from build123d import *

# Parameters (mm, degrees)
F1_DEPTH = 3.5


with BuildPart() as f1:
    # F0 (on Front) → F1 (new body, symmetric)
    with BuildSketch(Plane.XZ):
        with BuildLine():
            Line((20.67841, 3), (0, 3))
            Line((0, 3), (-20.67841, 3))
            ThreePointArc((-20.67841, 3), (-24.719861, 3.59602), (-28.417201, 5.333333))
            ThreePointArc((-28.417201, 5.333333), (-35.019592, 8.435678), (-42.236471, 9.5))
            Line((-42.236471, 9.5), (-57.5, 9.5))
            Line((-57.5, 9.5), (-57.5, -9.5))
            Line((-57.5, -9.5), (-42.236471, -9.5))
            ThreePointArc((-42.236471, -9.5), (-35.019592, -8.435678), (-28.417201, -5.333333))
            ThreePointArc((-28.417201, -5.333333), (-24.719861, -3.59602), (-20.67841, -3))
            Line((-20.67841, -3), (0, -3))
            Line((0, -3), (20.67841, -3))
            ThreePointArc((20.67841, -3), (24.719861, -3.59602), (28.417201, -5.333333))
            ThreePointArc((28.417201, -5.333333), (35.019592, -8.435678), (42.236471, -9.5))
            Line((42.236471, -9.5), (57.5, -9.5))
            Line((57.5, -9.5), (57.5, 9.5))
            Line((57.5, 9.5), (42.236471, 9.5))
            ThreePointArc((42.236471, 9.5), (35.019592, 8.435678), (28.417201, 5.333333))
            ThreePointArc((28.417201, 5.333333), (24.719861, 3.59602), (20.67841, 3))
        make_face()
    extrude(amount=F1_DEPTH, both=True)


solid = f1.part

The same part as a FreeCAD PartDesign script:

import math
import FreeCAD as App
import Part
import Sketcher
Q = App.Units.Quantity

doc = App.newDocument("Part")
body = doc.addObject("PartDesign::Body", "Body")

sketch1 = body.newObject("Sketcher::SketchObject", "Sketch")
sketch1.AttachmentSupport = (doc.getObject("XZ_Plane"), [""])
sketch1.MapMode = "FlatFace"
sketch1.addGeometry(Part.LineSegment(App.Vector(20.67841, 3, 0), App.Vector(-20.67841, 3, 0)), False)
sketch1.addGeometry(Part.ArcOfCircle(Part.Circle(App.Vector(-20.678411, 16.999997, 0), App.Vector(0, 0, 1), 13.999997), math.radians(-123.557311), math.radians(-89.999995)), False)
sketch1.addGeometry(Part.ArcOfCircle(Part.Circle(App.Vector(-42.236467, -15.499986, 0), App.Vector(0, 0, 1), 24.999986), math.radians(56.442679), math.radians(90.000008)), False)
sketch1.addGeometry(Part.LineSegment(App.Vector(-42.236471, 9.5, 0), App.Vector(-57.5, 9.5, 0)), False)
sketch1.addGeometry(Part.LineSegment(App.Vector(-57.5, 9.5, 0), App.Vector(-57.5, -9.5, 0)), False)
sketch1.addGeometry(Part.LineSegment(App.Vector(-57.5, -9.5, 0), App.Vector(-42.236471, -9.5, 0)), False)
sketch1.addGeometry(Part.ArcOfCircle(Part.Circle(App.Vector(-42.236467, 15.499986, 0), App.Vector(0, 0, 1), 24.999986), math.radians(-90.000008), math.radians(-56.442679)), False)
sketch1.addGeometry(Part.ArcOfCircle(Part.Circle(App.Vector(-20.678411, -16.999997, 0), App.Vector(0, 0, 1), 13.999997), math.radians(89.999995), math.radians(123.557311)), False)
sketch1.addGeometry(Part.LineSegment(App.Vector(-20.67841, -3, 0), App.Vector(20.67841, -3, 0)), False)
sketch1.addGeometry(Part.ArcOfCircle(Part.Circle(App.Vector(20.678411, -16.999997, 0), App.Vector(0, 0, 1), 13.999997), math.radians(56.442689), math.radians(90.000005)), False)
sketch1.addGeometry(Part.ArcOfCircle(Part.Circle(App.Vector(42.236467, 15.499986, 0), App.Vector(0, 0, 1), 24.999986), math.radians(-123.557321), math.radians(-89.999992)), False)
sketch1.addGeometry(Part.LineSegment(App.Vector(42.236471, -9.5, 0), App.Vector(57.5, -9.5, 0)), False)
sketch1.addGeometry(Part.LineSegment(App.Vector(57.5, -9.5, 0), App.Vector(57.5, 9.5, 0)), False)
sketch1.addGeometry(Part.LineSegment(App.Vector(57.5, 9.5, 0), App.Vector(42.236471, 9.5, 0)), False)
sketch1.addGeometry(Part.ArcOfCircle(Part.Circle(App.Vector(42.236467, -15.499986, 0), App.Vector(0, 0, 1), 24.999986), math.radians(89.999992), math.radians(123.557321)), False)
sketch1.addGeometry(Part.ArcOfCircle(Part.Circle(App.Vector(20.678411, 16.999997, 0), App.Vector(0, 0, 1), 13.999997), math.radians(-90.000005), math.radians(-56.442689)), False)
sketch1.addConstraint(Sketcher.Constraint("Tangent", 0, 2, 1, 2))
sketch1.addConstraint(Sketcher.Constraint("Tangent", 1, 1, 2, 1))
sketch1.addConstraint(Sketcher.Constraint("Tangent", 2, 2, 3, 1))
sketch1.addConstraint(Sketcher.Constraint("Coincident", 3, 2, 4, 1))
sketch1.addConstraint(Sketcher.Constraint("Coincident", 4, 2, 5, 1))
sketch1.addConstraint(Sketcher.Constraint("Tangent", 5, 2, 6, 1))
sketch1.addConstraint(Sketcher.Constraint("Tangent", 6, 2, 7, 2))
sketch1.addConstraint(Sketcher.Constraint("Tangent", 7, 1, 8, 1))
sketch1.addConstraint(Sketcher.Constraint("Tangent", 8, 2, 9, 2))
sketch1.addConstraint(Sketcher.Constraint("Tangent", 9, 1, 10, 1))
sketch1.addConstraint(Sketcher.Constraint("Tangent", 10, 2, 11, 1))
sketch1.addConstraint(Sketcher.Constraint("Coincident", 11, 2, 12, 1))
sketch1.addConstraint(Sketcher.Constraint("Coincident", 12, 2, 13, 1))
sketch1.addConstraint(Sketcher.Constraint("Tangent", 13, 2, 14, 1))
sketch1.addConstraint(Sketcher.Constraint("Tangent", 14, 2, 15, 2))
sketch1.addConstraint(Sketcher.Constraint("Tangent", 15, 1, 0, 1))
sketch1.addConstraint(Sketcher.Constraint("Horizontal", 0))
sketch1.addConstraint(Sketcher.Constraint("Horizontal", 3))
sketch1.addConstraint(Sketcher.Constraint("Vertical", 4))
sketch1.addConstraint(Sketcher.Constraint("Horizontal", 5))
sketch1.addConstraint(Sketcher.Constraint("Horizontal", 8))
sketch1.addConstraint(Sketcher.Constraint("Horizontal", 11))
sketch1.addConstraint(Sketcher.Constraint("Vertical", 12))
sketch1.addConstraint(Sketcher.Constraint("Horizontal", 13))
sketch1.addConstraint(Sketcher.Constraint("Equal", 2, 6))
sketch1.addConstraint(Sketcher.Constraint("Equal", 1, 7))
sketch1.addConstraint(Sketcher.Constraint("Equal", 7, 9))
sketch1.addConstraint(Sketcher.Constraint("Equal", 6, 10))
sketch1.addConstraint(Sketcher.Constraint("Equal", 10, 14))
sketch1.addConstraint(Sketcher.Constraint("Equal", 9, 15))
sketch1.addConstraint(Sketcher.Constraint("Symmetric", 1, 3, 9, 3, -1, 1))
sketch1.addConstraint(Sketcher.Constraint("Symmetric", 6, 3, 14, 3, -1, 1))
sketch1.addConstraint(Sketcher.Constraint("Symmetric", 3, 2, 11, 2, -1, 1))
sketch1.addConstraint(Sketcher.Constraint("Symmetric", 6, 3, 10, 3, -2))
sketch1.addConstraint(Sketcher.Constraint("DistanceY", 4, 2, 4, 1, Q("19 mm")))
sketch1.addConstraint(Sketcher.Constraint("DistanceY", -1, 1, 0, 2, Q("3 mm")))
sketch1.addConstraint(Sketcher.Constraint("DistanceX", 3, 2, -1, 1, Q("57.5 mm")))
sketch1.addConstraint(Sketcher.Constraint("Radius", 1, Q("13.999997 mm")))
sketch1.addConstraint(Sketcher.Constraint("Radius", 2, Q("24.999986 mm")))
sketch1.addConstraint(Sketcher.Constraint("DistanceX", 0, 2, 0, 1, Q("41.35682 mm")))
pad1 = body.newObject("PartDesign::Pad", "Pad")
pad1.Profile = sketch1
pad1.Length = 7
pad1.Midplane = True

doc.recompute()
